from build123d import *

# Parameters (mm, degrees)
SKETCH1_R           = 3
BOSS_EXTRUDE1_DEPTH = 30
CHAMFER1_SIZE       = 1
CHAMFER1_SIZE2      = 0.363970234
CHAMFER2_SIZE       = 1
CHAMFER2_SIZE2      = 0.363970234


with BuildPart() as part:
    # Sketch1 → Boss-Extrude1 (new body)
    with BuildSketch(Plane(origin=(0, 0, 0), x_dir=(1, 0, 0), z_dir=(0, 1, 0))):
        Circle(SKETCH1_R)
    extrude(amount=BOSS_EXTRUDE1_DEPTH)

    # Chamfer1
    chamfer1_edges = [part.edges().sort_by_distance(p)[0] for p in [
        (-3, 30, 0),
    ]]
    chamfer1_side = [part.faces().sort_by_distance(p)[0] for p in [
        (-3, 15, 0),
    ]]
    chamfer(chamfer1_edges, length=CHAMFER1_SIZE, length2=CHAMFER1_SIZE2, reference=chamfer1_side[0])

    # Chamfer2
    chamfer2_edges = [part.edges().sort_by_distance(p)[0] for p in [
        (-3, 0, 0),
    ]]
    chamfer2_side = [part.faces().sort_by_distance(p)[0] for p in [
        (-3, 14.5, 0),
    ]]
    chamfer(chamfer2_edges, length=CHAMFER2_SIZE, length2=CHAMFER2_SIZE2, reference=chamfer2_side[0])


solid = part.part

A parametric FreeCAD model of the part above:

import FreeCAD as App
import Part
import Sketcher

V = App.Vector
Q = App.Units.Quantity


def edges_at(feature, points):
    """Names of the edges that pass closest to the given points."""
    edges = feature.Shape.Edges
    near = lambda p: min(range(len(edges)), key=lambda i: edges[i].distToShape(Part.Vertex(*p))[0])
    return sorted({f"Edge{near(p) + 1}" for p in points})

doc = App.newDocument("Part")
body = doc.addObject("PartDesign::Body", "Body")

sketch1 = body.newObject("Sketcher::SketchObject", "Sketch")
sketch1.AttachmentSupport = (doc.getObject("XZ_Plane"), [""])
sketch1.MapMode = "FlatFace"
sketch1.addGeometry(Part.Circle(V(0, 0, 0), V(0, 0, 1), 3), False)
sketch1.addConstraint([
    Sketcher.Constraint("Coincident", 0, 3, -1, 1),
    Sketcher.Constraint("Diameter", 0, Q("6 mm")),
])
pad1 = body.newObject("PartDesign::Pad", "Pad")
pad1.Profile = sketch1
pad1.Length = 30
pad1.Reversed = True
doc.recompute()

chamfer = body.newObject("PartDesign::Chamfer", "Chamfer")
chamfer.Base = (pad1, edges_at(pad1, [(-3, 30, 0)]))
chamfer.ChamferType = "Two distances"
chamfer.Size = 1
chamfer.Size2 = 0.36397
doc.recompute()

chamfer2 = body.newObject("PartDesign::Chamfer", "Chamfer001")
chamfer2.Base = (chamfer, edges_at(chamfer, [(-3, 0, 0)]))
chamfer2.ChamferType = "Two distances"
chamfer2.Size = 1
chamfer2.Size2 = 0.36397

doc.recompute()
